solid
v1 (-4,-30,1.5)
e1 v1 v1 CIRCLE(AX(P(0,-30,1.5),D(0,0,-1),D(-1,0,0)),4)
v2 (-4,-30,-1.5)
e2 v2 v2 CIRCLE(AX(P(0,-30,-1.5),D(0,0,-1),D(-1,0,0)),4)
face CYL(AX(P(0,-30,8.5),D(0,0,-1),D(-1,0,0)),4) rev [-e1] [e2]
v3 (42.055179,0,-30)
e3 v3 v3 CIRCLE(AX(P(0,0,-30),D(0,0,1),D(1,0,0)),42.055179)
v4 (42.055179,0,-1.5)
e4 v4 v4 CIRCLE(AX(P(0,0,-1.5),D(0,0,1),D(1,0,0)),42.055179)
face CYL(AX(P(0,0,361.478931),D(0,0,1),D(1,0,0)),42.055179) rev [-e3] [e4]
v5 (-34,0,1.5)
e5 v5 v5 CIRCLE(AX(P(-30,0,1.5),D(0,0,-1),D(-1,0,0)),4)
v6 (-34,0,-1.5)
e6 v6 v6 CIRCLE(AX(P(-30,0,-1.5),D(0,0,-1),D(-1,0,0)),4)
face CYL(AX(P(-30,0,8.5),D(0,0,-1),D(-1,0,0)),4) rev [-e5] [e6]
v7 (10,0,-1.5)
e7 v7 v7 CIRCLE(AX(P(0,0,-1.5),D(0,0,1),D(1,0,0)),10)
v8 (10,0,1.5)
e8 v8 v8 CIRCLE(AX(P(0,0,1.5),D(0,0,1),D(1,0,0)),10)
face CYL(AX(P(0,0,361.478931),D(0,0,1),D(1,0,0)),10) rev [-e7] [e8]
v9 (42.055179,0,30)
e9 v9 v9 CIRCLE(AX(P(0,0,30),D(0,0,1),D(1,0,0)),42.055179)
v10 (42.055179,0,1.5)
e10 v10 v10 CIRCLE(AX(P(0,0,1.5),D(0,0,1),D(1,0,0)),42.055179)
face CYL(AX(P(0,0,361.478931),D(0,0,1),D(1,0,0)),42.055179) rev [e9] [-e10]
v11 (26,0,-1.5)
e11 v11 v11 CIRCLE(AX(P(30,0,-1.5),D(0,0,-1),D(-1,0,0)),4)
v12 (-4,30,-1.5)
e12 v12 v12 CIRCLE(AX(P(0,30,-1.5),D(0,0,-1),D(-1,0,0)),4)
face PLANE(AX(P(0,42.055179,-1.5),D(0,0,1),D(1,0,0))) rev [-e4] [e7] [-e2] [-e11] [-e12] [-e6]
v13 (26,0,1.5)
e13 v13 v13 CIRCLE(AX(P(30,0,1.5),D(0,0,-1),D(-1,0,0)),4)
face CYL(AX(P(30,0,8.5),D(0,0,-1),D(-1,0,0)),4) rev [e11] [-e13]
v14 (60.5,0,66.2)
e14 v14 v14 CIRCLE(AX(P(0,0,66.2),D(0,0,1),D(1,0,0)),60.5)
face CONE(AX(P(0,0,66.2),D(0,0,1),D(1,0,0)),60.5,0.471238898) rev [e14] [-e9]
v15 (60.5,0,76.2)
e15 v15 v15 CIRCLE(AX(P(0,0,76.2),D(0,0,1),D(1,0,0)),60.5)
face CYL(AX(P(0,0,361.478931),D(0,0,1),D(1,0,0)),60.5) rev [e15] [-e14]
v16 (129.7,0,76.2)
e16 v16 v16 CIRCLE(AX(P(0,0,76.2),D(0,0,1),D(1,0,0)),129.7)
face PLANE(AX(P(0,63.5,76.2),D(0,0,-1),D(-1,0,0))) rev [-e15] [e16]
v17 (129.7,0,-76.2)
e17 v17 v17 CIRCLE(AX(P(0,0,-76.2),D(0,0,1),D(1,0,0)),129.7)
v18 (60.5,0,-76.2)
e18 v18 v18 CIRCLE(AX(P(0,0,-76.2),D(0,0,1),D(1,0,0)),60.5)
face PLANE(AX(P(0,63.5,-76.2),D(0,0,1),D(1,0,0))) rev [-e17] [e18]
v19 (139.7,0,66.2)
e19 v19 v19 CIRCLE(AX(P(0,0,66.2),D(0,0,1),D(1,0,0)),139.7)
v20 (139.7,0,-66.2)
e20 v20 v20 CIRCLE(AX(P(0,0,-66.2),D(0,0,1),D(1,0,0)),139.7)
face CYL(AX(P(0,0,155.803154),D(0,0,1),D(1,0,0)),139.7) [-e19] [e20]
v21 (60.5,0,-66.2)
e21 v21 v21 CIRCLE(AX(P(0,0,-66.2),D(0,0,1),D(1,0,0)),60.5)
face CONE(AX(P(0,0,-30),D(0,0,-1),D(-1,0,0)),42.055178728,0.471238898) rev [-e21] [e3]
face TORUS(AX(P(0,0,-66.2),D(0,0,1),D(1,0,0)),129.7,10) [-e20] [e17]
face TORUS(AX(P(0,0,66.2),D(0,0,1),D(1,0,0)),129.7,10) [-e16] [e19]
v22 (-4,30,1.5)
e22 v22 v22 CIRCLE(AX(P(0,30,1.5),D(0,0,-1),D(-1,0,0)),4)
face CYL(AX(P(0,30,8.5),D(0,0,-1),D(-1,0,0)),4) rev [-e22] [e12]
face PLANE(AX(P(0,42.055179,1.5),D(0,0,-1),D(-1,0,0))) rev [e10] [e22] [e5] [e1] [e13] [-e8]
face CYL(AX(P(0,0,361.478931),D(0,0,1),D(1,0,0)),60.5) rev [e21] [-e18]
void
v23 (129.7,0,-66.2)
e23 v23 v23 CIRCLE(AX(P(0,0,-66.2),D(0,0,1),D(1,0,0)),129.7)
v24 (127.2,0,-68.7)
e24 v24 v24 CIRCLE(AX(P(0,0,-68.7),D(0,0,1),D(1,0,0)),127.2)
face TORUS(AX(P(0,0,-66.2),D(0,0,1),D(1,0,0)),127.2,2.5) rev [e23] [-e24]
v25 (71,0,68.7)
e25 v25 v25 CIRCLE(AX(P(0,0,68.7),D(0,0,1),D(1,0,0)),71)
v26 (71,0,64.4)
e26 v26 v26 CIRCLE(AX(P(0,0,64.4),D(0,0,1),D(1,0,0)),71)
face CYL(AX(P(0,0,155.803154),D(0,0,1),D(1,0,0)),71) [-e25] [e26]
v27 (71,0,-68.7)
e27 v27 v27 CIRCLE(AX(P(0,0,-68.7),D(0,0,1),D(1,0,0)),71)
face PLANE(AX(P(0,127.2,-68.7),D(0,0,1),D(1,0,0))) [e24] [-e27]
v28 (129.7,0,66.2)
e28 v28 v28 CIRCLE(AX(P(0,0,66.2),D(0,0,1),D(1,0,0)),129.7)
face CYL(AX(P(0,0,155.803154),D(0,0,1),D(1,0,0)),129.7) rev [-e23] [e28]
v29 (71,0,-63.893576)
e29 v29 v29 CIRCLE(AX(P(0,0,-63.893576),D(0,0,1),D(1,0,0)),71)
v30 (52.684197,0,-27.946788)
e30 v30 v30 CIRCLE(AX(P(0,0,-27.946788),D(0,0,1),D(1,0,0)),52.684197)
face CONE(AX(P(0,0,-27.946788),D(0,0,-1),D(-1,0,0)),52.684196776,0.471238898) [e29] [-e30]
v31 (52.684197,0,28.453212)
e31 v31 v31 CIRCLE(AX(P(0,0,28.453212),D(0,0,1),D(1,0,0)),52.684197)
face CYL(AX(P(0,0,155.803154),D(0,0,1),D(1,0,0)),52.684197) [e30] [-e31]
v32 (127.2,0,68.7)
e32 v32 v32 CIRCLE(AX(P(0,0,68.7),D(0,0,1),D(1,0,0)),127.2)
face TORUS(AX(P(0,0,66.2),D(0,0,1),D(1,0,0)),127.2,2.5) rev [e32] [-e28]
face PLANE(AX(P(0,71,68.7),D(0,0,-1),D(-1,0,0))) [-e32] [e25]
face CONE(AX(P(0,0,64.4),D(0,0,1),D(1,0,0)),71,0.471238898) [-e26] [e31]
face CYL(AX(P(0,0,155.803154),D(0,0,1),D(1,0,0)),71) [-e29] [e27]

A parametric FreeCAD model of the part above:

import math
import FreeCAD as App
import Part
import Sketcher
from FreeCAD import Vector
Q = App.Units.Quantity

doc = App.newDocument("Part")
params = doc.addObject("Spreadsheet::Sheet", "Params")
for row, (alias, value) in enumerate([
    ("sketch1_width", "3 mm"),
    ("sketch1_height", "60 mm"),
    ("sketch1_height2", "10 mm"),
    ("revolution_angle", "360 deg"),
    ("sketch2_diameter", "8 mm"),
    ("pocket1_length", "10 mm"),
    ("sketch3_radius", "10 mm"),
    ("sketch3_radius2", "2.5 mm"),
    ("sketch3_height", "60 mm"),
    ("sketch3_width", "66.2 mm"),
    ("sketch3_width2", "56.2 mm"),
    ("revolution2_angle", "360 deg"),
], start=1):
    params.set(f"A{row}", alias)
    params.set(f"B{row}", "=" + value)
    params.setAlias(f"B{row}", alias)

body = doc.addObject("PartDesign::Body", "Body")

# Sketch on YZ plane
sketch1 = doc.addObject("Sketcher::SketchObject", "Sketch")
body.addObject(sketch1)
sketch1.AttachmentSupport = (doc.YZ_Plane, [""])
sketch1.MapMode = "FlatFace"
sketch1.addGeometry([
    Part.LineSegment(Vector(45.1, -30, 0), Vector(45.1, 30, 0)),  # 0
    Part.LineSegment(Vector(45.1, 30, 0), Vector(63.5, 66.2, 0)),  # 1
    Part.LineSegment(Vector(63.5, 66.2, 0), Vector(63.5, 76.2, 0)),  # 2
    Part.LineSegment(Vector(63.5, 76.2, 0), Vector(60.5, 76.2, 0)),  # 3
    Part.LineSegment(Vector(60.5, 76.2, 0), Vector(60.5, 66.2, 0)),  # 4
    Part.LineSegment(Vector(60.5, 66.2, 0), Vector(42.1, 30, 0)),  # 5
    Part.LineSegment(Vector(42.1, 30, 0), Vector(42.1, 1.5, 0)),  # 6
    Part.LineSegment(Vector(42.1, 1.5, 0), Vector(10, 1.5, 0)),  # 7
    Part.LineSegment(Vector(10, 1.5, 0), Vector(10, -1.5, 0)),  # 8
    Part.LineSegment(Vector(10, -1.5, 0), Vector(42.1, -1.5, 0)),  # 9
    Part.LineSegment(Vector(42.1, -1.5, 0), Vector(42.1, -30, 0)),  # 10
    Part.LineSegment(Vector(42.1, -30, 0), Vector(60.5, -66.2, 0)),  # 11
    Part.LineSegment(Vector(60.5, -66.2, 0), Vector(60.5, -76.2, 0)),  # 12
    Part.LineSegment(Vector(60.5, -76.2, 0), Vector(63.5, -76.2, 0)),  # 13
    Part.LineSegment(Vector(63.5, -76.2, 0), Vector(63.5, -66.2, 0)),  # 14
    Part.LineSegment(Vector(63.5, -66.2, 0), Vector(45.1, -30, 0)),  # 15
], False)
sketch1.addConstraint([
    Sketcher.Constraint("Coincident", 0, 2, 1, 1),
    Sketcher.Constraint("Coincident", 1, 2, 2, 1),
    Sketcher.Constraint("Coincident", 2, 2, 3, 1),
    Sketcher.Constraint("Coincident", 3, 2, 4, 1),
    Sketcher.Constraint("Coincident", 4, 2, 5, 1),
    Sketcher.Constraint("Coincident", 5, 2, 6, 1),
    Sketcher.Constraint("Coincident", 6, 2, 7, 1),
    Sketcher.Constraint("Coincident", 7, 2, 8, 1),
    Sketcher.Constraint("Coincident", 8, 2, 9, 1),
    Sketcher.Constraint("Coincident", 9, 2, 10, 1),
    Sketcher.Constraint("Coincident", 10, 2, 11, 1),
    Sketcher.Constraint("Coincident", 11, 2, 12, 1),
    Sketcher.Constraint("Coincident", 12, 2, 13, 1),
    Sketcher.Constraint("Coincident", 13, 2, 14, 1),
    Sketcher.Constraint("Coincident", 14, 2, 15, 1),
    Sketcher.Constraint("Coincident", 15, 2, 0, 1),
    Sketcher.Constraint("Vertical", 0),
    Sketcher.Constraint("Vertical", 2),
    Sketcher.Constraint("Horizontal", 3),
    Sketcher.Constraint("Vertical", 4),
    Sketcher.Constraint("Vertical", 6),
    Sketcher.Constraint("Horizontal", 7),
    Sketcher.Constraint("Vertical", 8),
    Sketcher.Constraint("Horizontal", 9),
    Sketcher.Constraint("Vertical", 10),
    Sketcher.Constraint("Vertical", 12),
    Sketcher.Constraint("Horizontal", 13),
    Sketcher.Constraint("Vertical", 14),
    Sketcher.Constraint("Symmetric", 6, 2, 9, 2, -1),
    Sketcher.Constraint("Symmetric", 4, 2, 11, 2, -1),
    Sketcher.Constraint("Symmetric", 2, 2, 13, 2, -1),
    Sketcher.Constraint("Parallel", 1, 5),
    Sketcher.Constraint("Parallel", 11, 15),
    Sketcher.Constraint("Horizontal", 1, 2, 4, 2),
    Sketcher.Constraint("Horizontal", 0, 2, 5, 2),
    Sketcher.Constraint("Horizontal", 11, 2, 14, 2),
    Sketcher.Constraint("Equal", 13, 8),
    Sketcher.Constraint("Equal", 6, 10),
    Sketcher.Constraint("DistanceX", 3, 2, 3, 1, Q("3 mm")),
    Sketcher.Constraint("DistanceY", 0, 1, 0, 2, Q("60 mm")),
    Sketcher.Constraint("DistanceY", 2, 1, 2, 2, Q("10 mm")),
    Sketcher.Constraint("Angle", 1, Q("63 deg")),
    Sketcher.Constraint("DistanceX", -1, 1, 7, 2, Q("10 mm")),
    Sketcher.Constraint("DistanceX", -1, 1, 1, 2, Q("63.5 mm")),
    Sketcher.Constraint("DistanceY", -1, 1, 1, 2, Q("66.2 mm")),
])
sketch1.setExpression("Constraints[38]", "Params.sketch1_width")
sketch1.setExpression("Constraints[39]", "Params.sketch1_height")
sketch1.setExpression("Constraints[40]", "Params.sketch1_height2")
revolution = doc.addObject("PartDesign::Revolution", "Revolution")
body.addObject(revolution)
revolution.Profile = sketch1
revolution.ReferenceAxis = (sketch1, ["V_Axis"])
revolution.setExpression("Angle", "Params.revolution_angle")

# Sketch on XY plane
sketch2 = doc.addObject("Sketcher::SketchObject", "Sketch001")
body.addObject(sketch2)
sketch2.AttachmentSupport = (doc.XY_Plane, [""])
sketch2.MapMode = "FlatFace"
sketch2.AttachmentOffset = App.Placement(Vector(0, 0, -1.5), App.Rotation())
sketch2.addGeometry([
    Part.Circle(Vector(0, 30, 0), Vector(0, 0, 1), 4),
    Part.Circle(Vector(-30, 0, 0), Vector(0, 0, 1), 4),
    Part.Circle(Vector(0, -30, 0), Vector(0, 0, 1), 4),
    Part.Circle(Vector(30, 0, 0), Vector(0, 0, 1), 4),
], False)
sketch2.addConstraint([
    Sketcher.Constraint("Equal", 0, 1),
    Sketcher.Constraint("Equal", 1, 2),
    Sketcher.Constraint("Equal", 2, 3),
    Sketcher.Constraint("Symmetric", 0, 3, 2, 3, -1, 1),
    Sketcher.Constraint("Symmetric", 1, 3, 3, 3, -1, 1),
    Sketcher.Constraint("PointOnObject", 0, 3, -2),
    Sketcher.Constraint("PointOnObject", 1, 3, -1),
    Sketcher.Constraint("Diameter", 0, Q("8 mm")),
    Sketcher.Constraint("DistanceY", -1, 1, 0, 3, Q("30 mm")),
    Sketcher.Constraint("DistanceX", 1, 3, -1, 1, Q("30 mm")),
])
sketch2.setExpression("Constraints[7]", "Params.sketch2_diameter")
pocket1 = doc.addObject("PartDesign::Pocket", "Pocket")
body.addObject(pocket1)
pocket1.Profile = sketch2
pocket1.setExpression("Length", "Params.pocket1_length")
pocket1.Reversed = True

# Sketch on YZ plane
sketch3 = doc.addObject("Sketcher::SketchObject", "Sketch002")
body.addObject(sketch3)
sketch3.AttachmentSupport = (doc.YZ_Plane, [""])
sketch3.MapMode = "FlatFace"
sketch3.addGeometry([
    Part.LineSegment(Vector(139.7, -66.2, 0), Vector(139.7, 66.2, 0)),  # 0
    Part.ArcOfCircle(Part.Circle(Vector(129.7, 66.2, 0), Vector(0, 0, 1), 10), math.radians(0), math.radians(90)),  # 1
    Part.LineSegment(Vector(129.7, 76.2, 0), Vector(63.5, 76.2, 0)),  # 2
    Part.LineSegment(Vector(63.5, 76.2, 0), Vector(63.5, 66.2, 0)),  # 3
    Part.LineSegment(Vector(63.5, 66.2, 0), Vector(45.1, 30, 0)),  # 4
    Part.LineSegment(Vector(45.1, 30, 0), Vector(45.1, -30, 0)),  # 5
    Part.LineSegment(Vector(45.1, -30, 0), Vector(63.5, -66.2, 0)),  # 6
    Part.LineSegment(Vector(63.5, -66.2, 0), Vector(63.5, -76.2, 0)),  # 7
    Part.LineSegment(Vector(63.5, -76.2, 0), Vector(129.7, -76.2, 0)),  # 8
    Part.ArcOfCircle(Part.Circle(Vector(129.7, -66.2, 0), Vector(0, 0, 1), 10), math.radians(-90), math.radians(0)),  # 9
    Part.LineSegment(Vector(129.7, 66.2, 0), Vector(129.7, -66.2, 0)),  # 10
    Part.ArcOfCircle(Part.Circle(Vector(127.2, -66.2, 0), Vector(0, 0, 1), 2.5), math.radians(-90), math.radians(0)),  # 11
    Part.LineSegment(Vector(127.2, -68.7, 0), Vector(71, -68.7, 0)),  # 12
    Part.LineSegment(Vector(71, -68.7, 0), Vector(71, -63.9, 0)),  # 13
    Part.LineSegment(Vector(71, -63.9, 0), Vector(52.7, -27.9, 0)),  # 14
    Part.LineSegment(Vector(52.7, -27.9, 0), Vector(52.7, 28.5, 0)),  # 15
    Part.LineSegment(Vector(52.7, 28.5, 0), Vector(71, 64.4, 0)),  # 16
    Part.LineSegment(Vector(71, 64.4, 0), Vector(71, 68.7, 0)),  # 17
    Part.LineSegment(Vector(71, 68.7, 0), Vector(127.2, 68.7, 0)),  # 18
    Part.ArcOfCircle(Part.Circle(Vector(127.2, 66.2, 0), Vector(0, 0, 1), 2.5), math.radians(0), math.radians(90)),  # 19
], False)
sketch3.addConstraint([
    Sketcher.Constraint("Tangent", 0, 2, 1, 1),
    Sketcher.Constraint("Tangent", 1, 2, 2, 1),
    Sketcher.Constraint("Coincident", 2, 2, 3, 1),
    Sketcher.Constraint("Coincident", 3, 2, 4, 1),
    Sketcher.Constraint("Coincident", 4, 2, 5, 1),
    Sketcher.Constraint("Coincident", 5, 2, 6, 1),
    Sketcher.Constraint("Coincident", 6, 2, 7, 1),
    Sketcher.Constraint("Coincident", 7, 2, 8, 1),
    Sketcher.Constraint("Tangent", 8, 2, 9, 1),
    Sketcher.Constraint("Tangent", 9, 2, 0, 1),
    Sketcher.Constraint("Tangent", 10, 2, 11, 2),
    Sketcher.Constraint("Tangent", 11, 1, 12, 1),
    Sketcher.Constraint("Coincident", 12, 2, 13, 1),
    Sketcher.Constraint("Coincident", 13, 2, 14, 1),
    Sketcher.Constraint("Coincident", 14, 2, 15, 1),
    Sketcher.Constraint("Coincident", 15, 2, 16, 1),
    Sketcher.Constraint("Coincident", 16, 2, 17, 1),
    Sketcher.Constraint("Coincident", 17, 2, 18, 1),
    Sketcher.Constraint("Tangent", 18, 2, 19, 2),
    Sketcher.Constraint("Tangent", 19, 1, 10, 1),
    Sketcher.Constraint("Vertical", 0),
    Sketcher.Constraint("Horizontal", 2),
    Sketcher.Constraint("Vertical", 3),
    Sketcher.Constraint("Vertical", 5),
    Sketcher.Constraint("Vertical", 7),
    Sketcher.Constraint("Horizontal", 8),
    Sketcher.Constraint("Vertical", 10),
    Sketcher.Constraint("Horizontal", 12),
    Sketcher.Constraint("Vertical", 13),
    Sketcher.Constraint("Vertical", 15),
    Sketcher.Constraint("Vertical", 17),
    Sketcher.Constraint("Horizontal", 18),
    Sketcher.Constraint("Coincident", 10, 2, 9, 3),
    Sketcher.Constraint("Coincident", 19, 1, 1, 3),
    Sketcher.Constraint("Equal", 11, 19),
    Sketcher.Constraint("Symmetric", 3, 2, 6, 2, -1),
    Sketcher.Constraint("Symmetric", 12, 2, 17, 2, -1),
    Sketcher.Constraint("Parallel", 6, 14),
    Sketcher.Constraint("Parallel", 4, 16),
    Sketcher.Constraint("Horizontal", 0, 2, 3, 2),
    Sketcher.Constraint("Equal", 4, 6),
    Sketcher.Constraint("Radius", 1, Q("10 mm")),
    Sketcher.Constraint("Radius", 11, Q("2.5 mm")),
    Sketcher.Constraint("DistanceY", 5, 2, 5, 1, Q("60 mm")),
    Sketcher.Constraint("Angle", 4, Q("-117 deg")),
    Sketcher.Constraint("DistanceX", 2, 2, 2, 1, Q("66.2 mm")),
    Sketcher.Constraint("DistanceX", 12, 2, 12, 1, Q("56.2 mm")),
    Sketcher.Constraint("DistanceY", 0, 1, 0, 2, Q("132.4 mm")),
    Sketcher.Constraint("DistanceY", 15, 1, 15, 2, Q("56.4 mm")),
    Sketcher.Constraint("DistanceY", 17, 1, 17, 2, Q("4.3 mm")),
    Sketcher.Constraint("DistanceX", -1, 1, 12, 2, Q("71 mm")),
    Sketcher.Constraint("DistanceY", 13, 1, 13, 2, Q("4.806424 mm")),
])
sketch3.setExpression("Constraints[41]", "Params.sketch3_radius")
sketch3.setExpression("Constraints[42]", "Params.sketch3_radius2")
sketch3.setExpression("Constraints[43]", "Params.sketch3_height")
sketch3.setExpression("Constraints[45]", "Params.sketch3_width")
sketch3.setExpression("Constraints[46]", "Params.sketch3_width2")
revolution2 = doc.addObject("PartDesign::Revolution", "Revolution001")
body.addObject(revolution2)
revolution2.Profile = sketch3
revolution2.ReferenceAxis = (sketch3, ["V_Axis"])
revolution2.setExpression("Angle", "Params.revolution2_angle")

doc.recompute()
